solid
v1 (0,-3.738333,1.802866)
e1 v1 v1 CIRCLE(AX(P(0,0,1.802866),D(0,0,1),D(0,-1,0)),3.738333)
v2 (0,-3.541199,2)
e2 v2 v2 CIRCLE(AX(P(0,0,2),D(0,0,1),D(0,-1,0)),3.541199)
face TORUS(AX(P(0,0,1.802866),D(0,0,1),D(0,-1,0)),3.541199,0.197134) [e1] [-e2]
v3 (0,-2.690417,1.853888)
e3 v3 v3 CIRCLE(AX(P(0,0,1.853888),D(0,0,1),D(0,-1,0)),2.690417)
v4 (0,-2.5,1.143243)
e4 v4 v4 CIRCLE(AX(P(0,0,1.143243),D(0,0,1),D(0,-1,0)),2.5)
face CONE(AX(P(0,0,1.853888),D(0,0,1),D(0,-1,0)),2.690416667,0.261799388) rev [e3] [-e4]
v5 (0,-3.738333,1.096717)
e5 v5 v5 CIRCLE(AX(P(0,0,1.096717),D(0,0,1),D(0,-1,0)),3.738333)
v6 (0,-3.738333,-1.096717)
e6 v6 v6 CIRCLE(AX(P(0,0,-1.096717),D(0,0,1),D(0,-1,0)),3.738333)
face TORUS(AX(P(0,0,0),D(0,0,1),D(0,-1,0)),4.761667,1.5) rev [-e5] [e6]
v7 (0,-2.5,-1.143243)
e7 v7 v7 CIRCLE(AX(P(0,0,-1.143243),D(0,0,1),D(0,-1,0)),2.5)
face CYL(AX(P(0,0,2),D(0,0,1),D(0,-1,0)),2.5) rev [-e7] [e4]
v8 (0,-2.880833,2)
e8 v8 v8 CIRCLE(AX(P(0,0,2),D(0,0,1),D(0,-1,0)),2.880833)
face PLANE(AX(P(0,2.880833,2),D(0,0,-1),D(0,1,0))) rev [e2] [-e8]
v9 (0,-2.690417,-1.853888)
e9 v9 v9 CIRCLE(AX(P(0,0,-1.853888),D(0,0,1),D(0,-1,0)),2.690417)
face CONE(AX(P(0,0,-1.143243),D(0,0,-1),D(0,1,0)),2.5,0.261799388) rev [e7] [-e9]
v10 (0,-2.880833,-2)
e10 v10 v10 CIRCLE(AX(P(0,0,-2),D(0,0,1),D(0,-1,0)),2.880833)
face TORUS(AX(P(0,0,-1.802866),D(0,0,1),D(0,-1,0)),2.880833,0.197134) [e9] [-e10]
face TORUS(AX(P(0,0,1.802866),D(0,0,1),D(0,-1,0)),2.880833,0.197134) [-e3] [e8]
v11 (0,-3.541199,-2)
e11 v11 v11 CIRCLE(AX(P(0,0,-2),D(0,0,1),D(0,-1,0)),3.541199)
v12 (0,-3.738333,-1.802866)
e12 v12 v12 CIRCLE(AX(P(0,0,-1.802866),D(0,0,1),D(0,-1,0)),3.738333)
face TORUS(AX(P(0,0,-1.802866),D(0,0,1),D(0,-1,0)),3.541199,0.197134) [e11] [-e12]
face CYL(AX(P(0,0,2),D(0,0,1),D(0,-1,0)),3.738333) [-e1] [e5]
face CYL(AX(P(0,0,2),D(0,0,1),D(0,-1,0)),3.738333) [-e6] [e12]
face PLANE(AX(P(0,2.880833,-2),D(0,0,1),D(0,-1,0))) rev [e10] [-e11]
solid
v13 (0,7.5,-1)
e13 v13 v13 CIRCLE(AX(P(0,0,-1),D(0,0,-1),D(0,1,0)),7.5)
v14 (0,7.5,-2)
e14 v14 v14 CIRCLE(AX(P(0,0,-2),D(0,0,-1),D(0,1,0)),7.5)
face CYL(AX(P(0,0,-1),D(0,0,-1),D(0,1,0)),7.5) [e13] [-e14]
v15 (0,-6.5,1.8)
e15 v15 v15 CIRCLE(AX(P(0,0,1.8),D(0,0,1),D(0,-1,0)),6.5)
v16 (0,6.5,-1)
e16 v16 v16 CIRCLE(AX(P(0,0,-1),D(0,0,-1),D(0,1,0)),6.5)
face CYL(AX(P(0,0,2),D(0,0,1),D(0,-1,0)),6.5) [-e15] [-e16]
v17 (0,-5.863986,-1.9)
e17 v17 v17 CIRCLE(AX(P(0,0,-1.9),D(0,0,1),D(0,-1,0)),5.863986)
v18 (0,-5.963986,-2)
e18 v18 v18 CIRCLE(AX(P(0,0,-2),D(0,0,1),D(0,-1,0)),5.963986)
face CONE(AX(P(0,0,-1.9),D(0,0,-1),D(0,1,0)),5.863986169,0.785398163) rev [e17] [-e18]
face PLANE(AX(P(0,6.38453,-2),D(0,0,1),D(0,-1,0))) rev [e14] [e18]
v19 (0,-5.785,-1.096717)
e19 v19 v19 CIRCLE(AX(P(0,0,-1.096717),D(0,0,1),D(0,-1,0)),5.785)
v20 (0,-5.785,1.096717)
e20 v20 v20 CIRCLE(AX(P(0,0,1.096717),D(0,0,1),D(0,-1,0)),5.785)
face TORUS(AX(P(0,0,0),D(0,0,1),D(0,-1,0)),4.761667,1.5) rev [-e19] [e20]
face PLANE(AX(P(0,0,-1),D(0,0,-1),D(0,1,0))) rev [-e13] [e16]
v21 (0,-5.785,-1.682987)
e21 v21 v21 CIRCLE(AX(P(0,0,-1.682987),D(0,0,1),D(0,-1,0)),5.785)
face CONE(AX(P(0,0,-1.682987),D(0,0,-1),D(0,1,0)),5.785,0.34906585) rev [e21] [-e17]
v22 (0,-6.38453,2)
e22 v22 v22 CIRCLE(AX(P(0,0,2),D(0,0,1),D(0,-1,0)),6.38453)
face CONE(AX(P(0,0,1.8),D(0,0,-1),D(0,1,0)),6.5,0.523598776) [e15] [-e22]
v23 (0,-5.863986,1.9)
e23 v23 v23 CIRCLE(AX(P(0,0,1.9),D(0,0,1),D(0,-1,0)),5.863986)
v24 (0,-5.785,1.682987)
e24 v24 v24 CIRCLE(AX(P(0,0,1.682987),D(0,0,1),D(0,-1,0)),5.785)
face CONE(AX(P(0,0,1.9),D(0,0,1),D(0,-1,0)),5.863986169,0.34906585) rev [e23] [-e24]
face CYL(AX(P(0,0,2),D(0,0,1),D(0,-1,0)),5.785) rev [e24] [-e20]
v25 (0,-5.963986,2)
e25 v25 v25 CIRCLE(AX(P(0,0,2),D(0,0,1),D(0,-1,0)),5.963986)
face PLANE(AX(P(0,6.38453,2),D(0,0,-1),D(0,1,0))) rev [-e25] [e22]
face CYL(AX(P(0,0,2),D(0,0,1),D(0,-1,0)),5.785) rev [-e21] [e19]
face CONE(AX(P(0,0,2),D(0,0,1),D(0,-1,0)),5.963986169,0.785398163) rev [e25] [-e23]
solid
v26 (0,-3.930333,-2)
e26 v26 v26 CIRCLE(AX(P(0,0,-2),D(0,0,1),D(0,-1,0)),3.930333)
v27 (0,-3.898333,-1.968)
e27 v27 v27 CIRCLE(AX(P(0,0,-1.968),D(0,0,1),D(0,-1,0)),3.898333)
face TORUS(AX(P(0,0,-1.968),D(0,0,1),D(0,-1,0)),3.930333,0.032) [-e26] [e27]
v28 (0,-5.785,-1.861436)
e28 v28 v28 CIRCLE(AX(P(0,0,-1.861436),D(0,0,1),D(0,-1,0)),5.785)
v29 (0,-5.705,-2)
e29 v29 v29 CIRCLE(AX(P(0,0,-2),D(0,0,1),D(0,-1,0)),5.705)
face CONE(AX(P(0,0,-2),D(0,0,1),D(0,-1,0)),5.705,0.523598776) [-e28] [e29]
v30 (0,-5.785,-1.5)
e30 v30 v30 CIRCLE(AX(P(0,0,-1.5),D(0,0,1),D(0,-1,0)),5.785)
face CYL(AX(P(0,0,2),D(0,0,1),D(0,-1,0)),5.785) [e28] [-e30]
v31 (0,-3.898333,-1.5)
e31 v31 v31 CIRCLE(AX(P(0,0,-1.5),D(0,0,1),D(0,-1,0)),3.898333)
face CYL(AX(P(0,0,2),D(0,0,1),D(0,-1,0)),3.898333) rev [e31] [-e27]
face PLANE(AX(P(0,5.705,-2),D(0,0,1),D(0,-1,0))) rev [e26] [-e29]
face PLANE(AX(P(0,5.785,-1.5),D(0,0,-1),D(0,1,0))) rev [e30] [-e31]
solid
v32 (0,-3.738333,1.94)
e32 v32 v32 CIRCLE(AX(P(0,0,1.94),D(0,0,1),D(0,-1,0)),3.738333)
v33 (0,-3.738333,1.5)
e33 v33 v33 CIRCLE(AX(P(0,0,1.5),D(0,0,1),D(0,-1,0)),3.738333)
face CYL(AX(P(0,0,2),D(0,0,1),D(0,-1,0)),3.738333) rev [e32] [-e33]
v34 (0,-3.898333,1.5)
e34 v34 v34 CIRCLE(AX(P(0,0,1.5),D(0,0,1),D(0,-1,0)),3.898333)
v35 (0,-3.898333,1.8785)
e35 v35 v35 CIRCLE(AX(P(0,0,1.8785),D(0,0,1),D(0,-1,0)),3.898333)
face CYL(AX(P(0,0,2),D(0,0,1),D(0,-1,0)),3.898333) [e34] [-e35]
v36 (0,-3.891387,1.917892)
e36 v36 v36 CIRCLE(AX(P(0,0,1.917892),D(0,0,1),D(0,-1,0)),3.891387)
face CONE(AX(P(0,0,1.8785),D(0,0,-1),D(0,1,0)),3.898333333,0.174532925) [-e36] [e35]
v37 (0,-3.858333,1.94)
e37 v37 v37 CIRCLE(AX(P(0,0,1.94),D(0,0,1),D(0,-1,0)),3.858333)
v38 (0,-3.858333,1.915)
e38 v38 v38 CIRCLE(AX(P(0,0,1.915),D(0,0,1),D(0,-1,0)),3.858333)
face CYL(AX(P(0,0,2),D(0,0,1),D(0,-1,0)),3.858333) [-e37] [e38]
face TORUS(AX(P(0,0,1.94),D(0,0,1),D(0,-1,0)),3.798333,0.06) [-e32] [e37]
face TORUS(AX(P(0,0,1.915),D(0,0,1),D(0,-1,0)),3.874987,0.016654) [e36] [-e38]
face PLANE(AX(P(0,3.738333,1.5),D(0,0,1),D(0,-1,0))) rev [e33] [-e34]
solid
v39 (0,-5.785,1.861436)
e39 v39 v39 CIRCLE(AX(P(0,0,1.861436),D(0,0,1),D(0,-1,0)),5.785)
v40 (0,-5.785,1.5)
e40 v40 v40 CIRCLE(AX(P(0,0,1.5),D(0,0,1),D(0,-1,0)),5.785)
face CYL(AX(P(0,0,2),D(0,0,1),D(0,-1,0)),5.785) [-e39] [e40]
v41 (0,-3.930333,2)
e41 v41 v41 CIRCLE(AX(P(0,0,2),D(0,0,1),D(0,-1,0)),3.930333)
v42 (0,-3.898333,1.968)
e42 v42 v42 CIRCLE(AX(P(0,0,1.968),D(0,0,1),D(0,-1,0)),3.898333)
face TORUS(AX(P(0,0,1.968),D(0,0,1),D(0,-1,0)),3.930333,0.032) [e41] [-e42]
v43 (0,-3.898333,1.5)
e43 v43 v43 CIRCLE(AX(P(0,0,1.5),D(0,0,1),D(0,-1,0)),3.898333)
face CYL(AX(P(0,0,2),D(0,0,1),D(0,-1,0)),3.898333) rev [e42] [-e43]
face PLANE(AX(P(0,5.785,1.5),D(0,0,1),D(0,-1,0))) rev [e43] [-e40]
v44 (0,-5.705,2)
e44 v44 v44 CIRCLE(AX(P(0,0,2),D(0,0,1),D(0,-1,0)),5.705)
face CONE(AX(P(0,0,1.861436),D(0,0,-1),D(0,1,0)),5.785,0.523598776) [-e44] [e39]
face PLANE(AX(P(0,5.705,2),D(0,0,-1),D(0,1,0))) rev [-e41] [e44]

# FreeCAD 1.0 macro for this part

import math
import FreeCAD as App
import Part
import Sketcher
from FreeCAD import Vector
Q = App.Units.Quantity

doc = App.newDocument("Part")
body = doc.addObject("PartDesign::Body", "Body")

# Sketch on YZ plane
sketch1 = body.newObject("Sketcher::SketchObject", "Sketch")
sketch1.AttachmentSupport = (doc.getObject("YZ_Plane"), [""])
sketch1.MapMode = "FlatFace"
sketch1.addGeometry([
    Part.LineSegment(Vector(5.86, 1.9, 0), Vector(5.79, 1.68, 0)),  # 0
    Part.LineSegment(Vector(5.79, 1.68, 0), Vector(5.79, 1.1, 0)),  # 1
    Part.ArcOfCircle(Part.Circle(Vector(4.76, 0, 0), Vector(0, 0, 1), 1.5), math.radians(-47), math.radians(47)),  # 2
    Part.LineSegment(Vector(5.79, -1.1, 0), Vector(5.79, -1.68, 0)),  # 3
    Part.LineSegment(Vector(5.79, -1.68, 0), Vector(5.86, -1.9, 0)),  # 4
    Part.LineSegment(Vector(5.86, -1.9, 0), Vector(5.96, -2, 0)),  # 5
    Part.LineSegment(Vector(5.96, -2, 0), Vector(6.38, -2, 0)),  # 6
    Part.LineSegment(Vector(6.38, -2, 0), Vector(6.5, -1.8, 0)),  # 7
    Part.LineSegment(Vector(6.5, -1.8, 0), Vector(6.5, 1.8, 0)),  # 8
    Part.LineSegment(Vector(6.5, 1.8, 0), Vector(6.38, 2, 0)),  # 9
    Part.LineSegment(Vector(6.38, 2, 0), Vector(5.96, 2, 0)),  # 10
    Part.LineSegment(Vector(5.96, 2, 0), Vector(5.86, 1.9, 0)),  # 11
], False)
sketch1.addConstraint([
    Sketcher.Constraint("Coincident", 0, 2, 1, 1),
    Sketcher.Constraint("Coincident", 1, 2, 2, 2),
    Sketcher.Constraint("Coincident", 2, 1, 3, 1),
    Sketcher.Constraint("Coincident", 3, 2, 4, 1),
    Sketcher.Constraint("Coincident", 4, 2, 5, 1),
    Sketcher.Constraint("Coincident", 5, 2, 6, 1),
    Sketcher.Constraint("Coincident", 6, 2, 7, 1),
    Sketcher.Constraint("Coincident", 7, 2, 8, 1),
    Sketcher.Constraint("Coincident", 8, 2, 9, 1),
    Sketcher.Constraint("Coincident", 9, 2, 10, 1),
    Sketcher.Constraint("Coincident", 10, 2, 11, 1),
    Sketcher.Constraint("Coincident", 11, 2, 0, 1),
    Sketcher.Constraint("Vertical", 1),
    Sketcher.Constraint("Vertical", 3),
    Sketcher.Constraint("Horizontal", 6),
    Sketcher.Constraint("Vertical", 8),
    Sketcher.Constraint("Horizontal", 10),
    Sketcher.Constraint("Symmetric", 1, 2, 2, 1, -1),
    Sketcher.Constraint("Symmetric", 6, 2, 9, 2, -1),
    Sketcher.Constraint("Symmetric", 4, 2, 11, 2, -1),
    Sketcher.Constraint("Perpendicular", 5, 11),
    Sketcher.Constraint("Vertical", 5, 2, 10, 2),
    Sketcher.Constraint("Equal", 1, 3),
    Sketcher.Constraint("Equal", 4, 7),
    Sketcher.Constraint("Equal", 7, 9),
    Sketcher.Constraint("Radius", 2, Q("1.5 mm")),
    Sketcher.Constraint("Angle", 0, Q("-110 deg")),
    Sketcher.Constraint("Angle", 7, Q("60 deg")),
    Sketcher.Constraint("DistanceY", 8, 1, 8, 2, Q("3.6 mm")),
    Sketcher.Constraint("DistanceY", 5, 2, -1, 1, Q("2 mm")),
    Sketcher.Constraint("DistanceY", 4, 2, -1, 1, Q("1.9 mm")),
    Sketcher.Constraint("DistanceX", -1, 1, 7, 2, Q("6.5 mm")),
    Sketcher.Constraint("DistanceX", -1, 1, 0, 2, Q("5.785 mm")),
    Sketcher.Constraint("DistanceY", 1, 2, 1, 1, Q("0.58627 mm")),
])
revolution = body.newObject("PartDesign::Revolution", "Revolution")
revolution.Profile = sketch1
revolution.ReferenceAxis = (sketch1, ["V_Axis"])
revolution.Angle = 360

# Sketch on XY plane
sketch2 = body.newObject("Sketcher::SketchObject", "Sketch001")
sketch2.AttachmentSupport = (doc.getObject("XY_Plane"), [""])
sketch2.MapMode = "FlatFace"
sketch2.AttachmentOffset = App.Placement(Vector(0, 0, -2), App.Rotation())
sketch2.addGeometry([
    Part.Circle(Vector(0, 0, 0), Vector(0, 0, 1), 8),
    Part.Circle(Vector(0, 0, 0), Vector(0, 0, 1), 6),
], False)
sketch2.addConstraint([
    Sketcher.Constraint("Coincident", 0, 3, -1, 1),
    Sketcher.Constraint("Coincident", 1, 3, -1, 1),
    Sketcher.Constraint("Diameter", 0, Q("15 mm")),
    Sketcher.Constraint("Diameter", 1, Q("12.76906 mm")),
])
pad1 = body.newObject("PartDesign::Pad", "Pad")
pad1.Profile = sketch2
pad1.Length = 1
body2 = doc.addObject("PartDesign::Body", "Body001")

# Sketch on YZ plane
sketch3 = body2.newObject("Sketcher::SketchObject", "Sketch002")
sketch3.AttachmentSupport = (doc.getObject("YZ_Plane001"), [""])
sketch3.MapMode = "FlatFace"
sketch3.addGeometry([
    Part.LineSegment(Vector(2.69, 1.85, 0), Vector(2.5, 1.14, 0)),  # 0
    Part.LineSegment(Vector(2.5, 1.14, 0), Vector(2.5, -1.14, 0)),  # 1
    Part.LineSegment(Vector(2.5, -1.14, 0), Vector(2.69, -1.85, 0)),  # 2
    Part.ArcOfCircle(Part.Circle(Vector(2.88, -1.8, 0), Vector(0, 0, 1), 0.2), math.radians(-165), math.radians(-90)),  # 3
    Part.LineSegment(Vector(2.88, -2, 0), Vector(3.54, -2, 0)),  # 4
    Part.ArcOfCircle(Part.Circle(Vector(3.54, -1.8, 0), Vector(0, 0, 1), 0.2), math.radians(-90), math.radians(0)),  # 5
    Part.LineSegment(Vector(3.74, -1.8, 0), Vector(3.74, -1.1, 0)),  # 6
    Part.ArcOfCircle(Part.Circle(Vector(4.76, 0, 0), Vector(0, 0, 1), 1.5), math.radians(133), math.radians(227)),  # 7
    Part.LineSegment(Vector(3.74, 1.1, 0), Vector(3.74, 1.8, 0)),  # 8
    Part.ArcOfCircle(Part.Circle(Vector(3.54, 1.8, 0), Vector(0, 0, 1), 0.2), math.radians(0), math.radians(90)),  # 9
    Part.LineSegment(Vector(3.54, 2, 0), Vector(2.88, 2, 0)),  # 10
    Part.ArcOfCircle(Part.Circle(Vector(2.88, 1.8, 0), Vector(0, 0, 1), 0.2), math.radians(90), math.radians(165)),  # 11
], False)
sketch3.addConstraint([
    Sketcher.Constraint("Coincident", 0, 2, 1, 1),
    Sketcher.Constraint("Coincident", 1, 2, 2, 1),
    Sketcher.Constraint("Tangent", 2, 2, 3, 1),
    Sketcher.Constraint("Tangent", 3, 2, 4, 1),
    Sketcher.Constraint("Tangent", 4, 2, 5, 1),
    Sketcher.Constraint("Tangent", 5, 2, 6, 1),
    Sketcher.Constraint("Coincident", 6, 2, 7, 2),
    Sketcher.Constraint("Coincident", 7, 1, 8, 1),
    Sketcher.Constraint("Tangent", 8, 2, 9, 1),
    Sketcher.Constraint("Tangent", 9, 2, 10, 1),
    Sketcher.Constraint("Tangent", 10, 2, 11, 1),
    Sketcher.Constraint("Tangent", 11, 2, 0, 1),
    Sketcher.Constraint("Vertical", 1),
    Sketcher.Constraint("Horizontal", 4),
    Sketcher.Constraint("Vertical", 6),
    Sketcher.Constraint("Vertical", 8),
    Sketcher.Constraint("Horizontal", 10),
    Sketcher.Constraint("Equal", 3, 5),
    Sketcher.Constraint("Equal", 5, 9),
    Sketcher.Constraint("Equal", 9, 11),
    Sketcher.Constraint("Symmetric", 5, 3, 9, 3, -1),
    Sketcher.Constraint("Symmetric", 2, 2, 11, 2, -1),
    Sketcher.Constraint("PointOnObject", 7, 3, -1),
    Sketcher.Constraint("Radius", 7, Q("1.5 mm")),
    Sketcher.Constraint("Angle", 0, Q("-105 deg")),
    Sketcher.Constraint("DistanceY", 3, 2, -1, 1, Q("2 mm")),
    Sketcher.Constraint("DistanceX", -1, 1, 0, 2, Q("2.5 mm")),
    Sketcher.Constraint("Radius", 3, Q("0.197134 mm")),
    Sketcher.Constraint("DistanceY", 6, 1, 6, 2, Q("0.706149 mm")),
    Sketcher.Constraint("DistanceX", -1, 1, 5, 3, Q("3.541199 mm")),
    Sketcher.Constraint("DistanceX", 3, 3, 5, 2, Q("0.8575 mm")),
])
revolution2 = body2.newObject("PartDesign::Revolution", "Revolution001")
revolution2.Profile = sketch3
revolution2.ReferenceAxis = (sketch3, ["V_Axis"])
revolution2.Angle = 360
body3 = doc.addObject("PartDesign::Body", "Body002")
body3.AllowCompound = True

# Sketch on YZ plane
sketch4 = body3.newObject("Sketcher::SketchObject", "Sketch003")
sketch4.AttachmentSupport = (doc.getObject("YZ_Plane002"), [""])
sketch4.MapMode = "FlatFace"
sketch4.addGeometry([
    Part.LineSegment(Vector(5.785, 1.5, 0), Vector(5.785, 1.861, 0)),  # 0
    Part.LineSegment(Vector(5.785, 1.861, 0), Vector(5.705, 2, 0)),  # 1
    Part.LineSegment(Vector(5.705, 2, 0), Vector(3.93, 2, 0)),  # 2
    Part.ArcOfCircle(Part.Circle(Vector(3.93, 1.968, 0), Vector(0, 0, 1), 0.032), math.radians(90), math.radians(180)),  # 3
    Part.LineSegment(Vector(3.898, 1.968, 0), Vector(3.898, 1.5, 0)),  # 4
    Part.LineSegment(Vector(3.898, 1.5, 0), Vector(5.785, 1.5, 0)),  # 5
    Part.LineSegment(Vector(3.898, -1.5, 0), Vector(3.898, -1.968, 0)),  # 6
    Part.ArcOfCircle(Part.Circle(Vector(3.93, -1.968, 0), Vector(0, 0, 1), 0.032), math.radians(180), math.radians(270)),  # 7
    Part.LineSegment(Vector(3.93, -2, 0), Vector(5.705, -2, 0)),  # 8
    Part.LineSegment(Vector(5.705, -2, 0), Vector(5.785, -1.861, 0)),  # 9
    Part.LineSegment(Vector(5.785, -1.861, 0), Vector(5.785, -1.5, 0)),  # 10
    Part.LineSegment(Vector(5.785, -1.5, 0), Vector(3.898, -1.5, 0)),  # 11
], False)
sketch4.addConstraint([
    Sketcher.Constraint("Coincident", 0, 2, 1, 1),
    Sketcher.Constraint("Coincident", 1, 2, 2, 1),
    Sketcher.Constraint("Tangent", 2, 2, 3, 1),
    Sketcher.Constraint("Tangent", 3, 2, 4, 1),
    Sketcher.Constraint("Coincident", 4, 2, 5, 1),
    Sketcher.Constraint("Coincident", 5, 2, 0, 1),
    Sketcher.Constraint("Tangent", 6, 2, 7, 1),
    Sketcher.Constraint("Tangent", 7, 2, 8, 1),
    Sketcher.Constraint("Coincident", 8, 2, 9, 1),
    Sketcher.Constraint("Coincident", 9, 2, 10, 1),
    Sketcher.Constraint("Coincident", 10, 2, 11, 1),
    Sketcher.Constraint("Coincident", 11, 2, 6, 1),
    Sketcher.Constraint("Vertical", 0),
    Sketcher.Constraint("Horizontal", 2),
    Sketcher.Constraint("Vertical", 4),
    Sketcher.Constraint("Horizontal", 5),
    Sketcher.Constraint("Vertical", 6),
    Sketcher.Constraint("Horizontal", 8),
    Sketcher.Constraint("Vertical", 10),
    Sketcher.Constraint("Horizontal", 11),
    Sketcher.Constraint("Equal", 3, 7),
    Sketcher.Constraint("Symmetric", 3, 3, 7, 3, -1),
    Sketcher.Constraint("Symmetric", 0, 2, 9, 2, -1),
    Sketcher.Constraint("Vertical", 1, 2, 8, 2),
    Sketcher.Constraint("Equal", 4, 6),
    Sketcher.Constraint("Angle", 1, Q("120 deg")),
    Sketcher.Constraint("DistanceY", -1, 1, 1, 2, Q("2 mm")),
    Sketcher.Constraint("Radius", 3, Q("0.032 mm")),
    Sketcher.Constraint("DistanceY", -1, 1, 4, 2, Q("1.5 mm")),
    Sketcher.Constraint("Distance", 1, Q("0.16 mm")),
    Sketcher.Constraint("DistanceX", -1, 1, 0, 2, Q("5.785 mm")),
    Sketcher.Constraint("DistanceX", 2, 2, 2, 1, Q("1.774667 mm")),
])
revolution3 = body3.newObject("PartDesign::Revolution", "Revolution002")
revolution3.Profile = sketch4
revolution3.ReferenceAxis = (sketch4, ["V_Axis"])
revolution3.Angle = 360
body4 = doc.addObject("PartDesign::Body", "Body003")

# Sketch on YZ plane
sketch5 = body4.newObject("Sketcher::SketchObject", "Sketch004")
sketch5.AttachmentSupport = (doc.getObject("YZ_Plane003"), [""])
sketch5.MapMode = "FlatFace"
sketch5.addGeometry([
    Part.LineSegment(Vector(3.898, 1.5, 0), Vector(3.898, 1.878, 0)),  # 0
    Part.LineSegment(Vector(3.898, 1.878, 0), Vector(3.891, 1.918, 0)),  # 1
    Part.ArcOfCircle(Part.Circle(Vector(3.875, 1.915, 0), Vector(0, 0, 1), 0.017), math.radians(10), math.radians(180)),  # 2
    Part.LineSegment(Vector(3.858, 1.915, 0), Vector(3.858, 1.94, 0)),  # 3
    Part.ArcOfCircle(Part.Circle(Vector(3.798, 1.94, 0), Vector(0, 0, 1), 0.06), math.radians(0), math.radians(180)),  # 4
    Part.LineSegment(Vector(3.738, 1.94, 0), Vector(3.738, 1.5, 0)),  # 5
    Part.LineSegment(Vector(3.738, 1.5, 0), Vector(3.898, 1.5, 0)),  # 6
], False)
sketch5.addConstraint([
    Sketcher.Constraint("Coincident", 0, 2, 1, 1),
    Sketcher.Constraint("Tangent", 1, 2, 2, 1),
    Sketcher.Constraint("Tangent", 2, 2, 3, 1),
    Sketcher.Constraint("Tangent", 3, 2, 4, 1),
    Sketcher.Constraint("Tangent", 4, 2, 5, 1),
    Sketcher.Constraint("Coincident", 5, 2, 6, 1),
    Sketcher.Constraint("Coincident", 6, 2, 0, 1),
    Sketcher.Constraint("Vertical", 0),
    Sketcher.Constraint("Vertical", 3),
    Sketcher.Constraint("Vertical", 5),
    Sketcher.Constraint("Horizontal", 6),
    Sketcher.Constraint("Angle", 1, Q("100 deg")),
    Sketcher.Constraint("Radius", 4, Q("0.06 mm")),
    Sketcher.Constraint("DistanceX", 6, 1, 6, 2, Q("0.16 mm")),
    Sketcher.Constraint("DistanceY", 5, 2, 5, 1, Q("0.44 mm")),
    Sketcher.Constraint("DistanceY", -1, 1, 5, 2, Q("1.5 mm")),
    Sketcher.Constraint("Distance", 1, Q("0.04 mm")),
    Sketcher.Constraint("DistanceY", 3, 1, 3, 2, Q("0.025 mm")),
    Sketcher.Constraint("DistanceX", -1, 1, 2, 3, Q("3.874987 mm")),
])
revolution4 = body4.newObject("PartDesign::Revolution", "Revolution003")
revolution4.Profile = sketch5
revolution4.ReferenceAxis = (sketch5, ["V_Axis"])
revolution4.Angle = 360

doc.recompute()
